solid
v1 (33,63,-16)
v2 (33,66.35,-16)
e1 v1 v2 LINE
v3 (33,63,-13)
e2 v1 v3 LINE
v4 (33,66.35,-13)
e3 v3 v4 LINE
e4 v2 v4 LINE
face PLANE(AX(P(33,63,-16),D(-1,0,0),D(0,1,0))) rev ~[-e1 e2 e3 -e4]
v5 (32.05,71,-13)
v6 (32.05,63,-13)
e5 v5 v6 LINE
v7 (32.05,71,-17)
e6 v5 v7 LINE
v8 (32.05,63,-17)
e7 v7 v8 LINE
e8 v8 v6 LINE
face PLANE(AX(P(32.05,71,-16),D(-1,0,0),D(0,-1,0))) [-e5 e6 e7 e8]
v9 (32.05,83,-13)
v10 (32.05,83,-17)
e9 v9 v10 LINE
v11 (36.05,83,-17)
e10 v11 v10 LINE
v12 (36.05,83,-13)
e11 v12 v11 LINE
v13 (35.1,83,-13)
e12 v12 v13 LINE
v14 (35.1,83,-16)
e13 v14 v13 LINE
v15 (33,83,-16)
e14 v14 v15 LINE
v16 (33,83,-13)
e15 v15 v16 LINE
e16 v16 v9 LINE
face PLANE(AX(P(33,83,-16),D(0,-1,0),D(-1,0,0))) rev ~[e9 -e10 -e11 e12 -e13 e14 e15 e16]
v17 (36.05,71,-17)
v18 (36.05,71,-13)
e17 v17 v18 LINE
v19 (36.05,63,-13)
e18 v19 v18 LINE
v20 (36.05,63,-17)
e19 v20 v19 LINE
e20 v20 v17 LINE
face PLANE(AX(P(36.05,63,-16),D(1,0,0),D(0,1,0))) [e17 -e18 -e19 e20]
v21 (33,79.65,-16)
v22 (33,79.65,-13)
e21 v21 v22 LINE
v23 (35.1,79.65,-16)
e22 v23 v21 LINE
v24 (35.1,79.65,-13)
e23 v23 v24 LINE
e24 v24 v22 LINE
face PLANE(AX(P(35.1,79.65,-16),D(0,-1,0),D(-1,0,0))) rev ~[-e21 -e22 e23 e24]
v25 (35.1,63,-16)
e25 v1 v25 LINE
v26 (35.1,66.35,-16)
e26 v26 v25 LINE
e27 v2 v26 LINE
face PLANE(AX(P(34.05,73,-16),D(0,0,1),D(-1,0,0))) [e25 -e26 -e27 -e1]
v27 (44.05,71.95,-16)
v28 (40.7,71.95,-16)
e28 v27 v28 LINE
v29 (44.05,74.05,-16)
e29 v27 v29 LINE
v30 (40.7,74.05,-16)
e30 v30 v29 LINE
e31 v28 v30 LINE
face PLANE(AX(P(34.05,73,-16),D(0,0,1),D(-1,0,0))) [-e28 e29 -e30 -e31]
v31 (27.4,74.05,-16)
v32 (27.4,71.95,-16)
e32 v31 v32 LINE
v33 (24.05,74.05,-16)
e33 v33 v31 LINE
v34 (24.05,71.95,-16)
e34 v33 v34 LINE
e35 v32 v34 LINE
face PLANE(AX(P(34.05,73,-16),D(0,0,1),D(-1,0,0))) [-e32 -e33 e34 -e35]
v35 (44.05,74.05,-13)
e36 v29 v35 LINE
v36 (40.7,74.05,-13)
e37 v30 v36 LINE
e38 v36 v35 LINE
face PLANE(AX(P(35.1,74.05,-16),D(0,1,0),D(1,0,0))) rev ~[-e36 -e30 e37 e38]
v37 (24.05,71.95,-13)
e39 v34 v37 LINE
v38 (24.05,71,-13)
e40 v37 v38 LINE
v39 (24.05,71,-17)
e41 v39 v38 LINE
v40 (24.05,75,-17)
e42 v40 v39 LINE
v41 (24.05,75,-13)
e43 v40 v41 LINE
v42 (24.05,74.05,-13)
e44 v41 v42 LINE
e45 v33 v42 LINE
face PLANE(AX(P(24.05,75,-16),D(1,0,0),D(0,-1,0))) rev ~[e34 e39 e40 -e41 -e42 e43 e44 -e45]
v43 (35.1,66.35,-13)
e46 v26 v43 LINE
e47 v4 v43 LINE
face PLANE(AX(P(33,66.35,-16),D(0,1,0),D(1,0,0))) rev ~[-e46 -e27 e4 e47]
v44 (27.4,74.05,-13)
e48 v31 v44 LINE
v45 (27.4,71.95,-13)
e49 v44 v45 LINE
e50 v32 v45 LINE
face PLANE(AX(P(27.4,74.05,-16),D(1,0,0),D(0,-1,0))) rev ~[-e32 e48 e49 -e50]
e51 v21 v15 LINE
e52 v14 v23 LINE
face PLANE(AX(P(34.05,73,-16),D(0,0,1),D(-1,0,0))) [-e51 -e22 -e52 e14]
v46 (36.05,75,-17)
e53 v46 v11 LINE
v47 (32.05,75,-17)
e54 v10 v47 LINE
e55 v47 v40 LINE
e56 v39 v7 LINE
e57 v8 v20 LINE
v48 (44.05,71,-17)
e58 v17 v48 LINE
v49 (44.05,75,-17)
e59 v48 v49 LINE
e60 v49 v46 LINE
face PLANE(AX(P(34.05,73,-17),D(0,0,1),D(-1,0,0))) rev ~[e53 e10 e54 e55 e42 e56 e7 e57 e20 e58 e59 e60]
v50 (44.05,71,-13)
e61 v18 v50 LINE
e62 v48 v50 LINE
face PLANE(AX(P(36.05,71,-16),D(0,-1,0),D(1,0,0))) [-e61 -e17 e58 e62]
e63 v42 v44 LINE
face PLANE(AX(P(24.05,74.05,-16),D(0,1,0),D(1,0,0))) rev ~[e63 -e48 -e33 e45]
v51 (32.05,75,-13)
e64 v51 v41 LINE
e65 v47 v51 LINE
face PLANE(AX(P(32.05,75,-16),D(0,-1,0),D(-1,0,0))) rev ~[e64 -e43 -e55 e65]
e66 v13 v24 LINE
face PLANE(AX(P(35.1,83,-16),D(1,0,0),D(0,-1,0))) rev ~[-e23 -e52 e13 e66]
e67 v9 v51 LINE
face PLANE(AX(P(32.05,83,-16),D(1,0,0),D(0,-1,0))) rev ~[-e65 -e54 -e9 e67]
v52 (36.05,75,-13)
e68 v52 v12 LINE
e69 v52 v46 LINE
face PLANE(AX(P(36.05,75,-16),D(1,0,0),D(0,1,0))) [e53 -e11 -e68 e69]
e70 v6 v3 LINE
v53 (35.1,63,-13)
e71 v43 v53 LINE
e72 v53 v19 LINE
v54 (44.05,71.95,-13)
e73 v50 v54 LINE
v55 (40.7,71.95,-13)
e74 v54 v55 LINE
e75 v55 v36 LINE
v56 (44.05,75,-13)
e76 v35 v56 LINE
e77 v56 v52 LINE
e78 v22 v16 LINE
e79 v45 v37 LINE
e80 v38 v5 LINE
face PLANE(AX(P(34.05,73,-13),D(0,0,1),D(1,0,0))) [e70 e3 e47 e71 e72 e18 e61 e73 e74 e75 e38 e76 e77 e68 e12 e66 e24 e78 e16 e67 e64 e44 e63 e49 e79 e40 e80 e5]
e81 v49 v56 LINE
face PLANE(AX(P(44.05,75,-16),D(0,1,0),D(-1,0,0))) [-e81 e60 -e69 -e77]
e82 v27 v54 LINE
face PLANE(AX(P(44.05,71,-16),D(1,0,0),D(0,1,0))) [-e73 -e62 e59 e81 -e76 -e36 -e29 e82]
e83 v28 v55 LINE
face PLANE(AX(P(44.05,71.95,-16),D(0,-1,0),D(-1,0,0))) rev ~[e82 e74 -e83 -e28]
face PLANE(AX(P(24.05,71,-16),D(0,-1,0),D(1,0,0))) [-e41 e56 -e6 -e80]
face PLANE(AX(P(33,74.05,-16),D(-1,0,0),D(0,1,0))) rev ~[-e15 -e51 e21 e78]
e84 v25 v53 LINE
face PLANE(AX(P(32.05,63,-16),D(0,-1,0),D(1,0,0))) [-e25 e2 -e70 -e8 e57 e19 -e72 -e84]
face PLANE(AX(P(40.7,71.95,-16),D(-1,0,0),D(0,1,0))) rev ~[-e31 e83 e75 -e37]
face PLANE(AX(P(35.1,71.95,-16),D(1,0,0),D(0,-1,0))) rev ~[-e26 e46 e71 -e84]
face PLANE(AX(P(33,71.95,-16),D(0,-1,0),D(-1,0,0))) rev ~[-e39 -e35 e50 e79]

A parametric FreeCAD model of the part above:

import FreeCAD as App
import Part
import Sketcher

V = App.Vector

doc = App.newDocument("Part")
body = doc.addObject("PartDesign::Body", "Body")

sketch1 = body.newObject("Sketcher::SketchObject", "Sketch")
sketch1.AttachmentSupport = (doc.getObject("XY_Plane"), [""])
sketch1.MapMode = "FlatFace"
sketch1.AttachmentOffset = App.Placement(V(0, 0, -28), App.Rotation())
sketch1.addGeometry([
    Part.LineSegment(V(-2, 10, 0), V(-2, 2, 0)),
    Part.LineSegment(V(-2, 2, 0), V(-10, 2, 0)),
    Part.LineSegment(V(-10, 2, 0), V(-10, -2, 0)),
    Part.LineSegment(V(-10, -2, 0), V(-2, -2, 0)),
    Part.LineSegment(V(-2, -2, 0), V(-2, -10, 0)),
    Part.LineSegment(V(-2, -10, 0), V(2, -10, 0)),
    Part.LineSegment(V(2, -10, 0), V(2, -2, 0)),
    Part.LineSegment(V(2, -2, 0), V(10, -2, 0)),
    Part.LineSegment(V(10, -2, 0), V(10, 2, 0)),
    Part.LineSegment(V(10, 2, 0), V(2, 2, 0)),
    Part.LineSegment(V(2, 2, 0), V(2, 10, 0)),
    Part.LineSegment(V(2, 10, 0), V(-2, 10, 0)),
], False)
sketch1.addConstraint([
    Sketcher.Constraint("Coincident", 0, 2, 1, 1),
    Sketcher.Constraint("Coincident", 1, 2, 2, 1),
    Sketcher.Constraint("Coincident", 2, 2, 3, 1),
    Sketcher.Constraint("Coincident", 3, 2, 4, 1),
    Sketcher.Constraint("Coincident", 4, 2, 5, 1),
    Sketcher.Constraint("Coincident", 5, 2, 6, 1),
    Sketcher.Constraint("Coincident", 6, 2, 7, 1),
    Sketcher.Constraint("Coincident", 7, 2, 8, 1),
    Sketcher.Constraint("Coincident", 8, 2, 9, 1),
    Sketcher.Constraint("Coincident", 9, 2, 10, 1),
    Sketcher.Constraint("Coincident", 10, 2, 11, 1),
    Sketcher.Constraint("Coincident", 11, 2, 0, 1),
    Sketcher.Constraint("Vertical", 0),
    Sketcher.Constraint("Horizontal", 1),
    Sketcher.Constraint("Vertical", 2),
    Sketcher.Constraint("Horizontal", 3),
    Sketcher.Constraint("Vertical", 4),
    Sketcher.Constraint("Horizontal", 5),
    Sketcher.Constraint("Vertical", 6),
    Sketcher.Constraint("Horizontal", 7),
    Sketcher.Constraint("Vertical", 8),
    Sketcher.Constraint("Horizontal", 9),
    Sketcher.Constraint("Vertical", 10),
    Sketcher.Constraint("Horizontal", 11),
    Sketcher.Constraint("Symmetric", 0, 2, 6, 2, -1, 1),
    Sketcher.Constraint("Symmetric", 2, 2, 8, 2, -1, 1),
    Sketcher.Constraint("Symmetric", 4, 2, 10, 2, -1, 1),
    Sketcher.Constraint("Symmetric", 3, 2, 6, 2, -2),
    Sketcher.Constraint("Equal", 9, 0),
    Sketcher.Constraint("Equal", 11, 2),
    Sketcher.Constraint("DistanceX", 1, 2, 1, 1, 8.0),
    Sketcher.Constraint("DistanceX", 5, 1, 5, 2, 4.0),
])
pad1 = body.newObject("PartDesign::Pad", "Pad")
pad1.Profile = sketch1
pad1.Length = 1

sketch2 = body.newObject("Sketcher::SketchObject", "Sketch001")
sketch2.AttachmentSupport = (doc.getObject("XY_Plane"), [""])
sketch2.MapMode = "FlatFace"
sketch2.AttachmentOffset = App.Placement(V(0, 0, -28), App.Rotation())
sketch2.addGeometry([
    Part.LineSegment(V(-2, -10, 0), V(-2, -2, 0)),
    Part.LineSegment(V(-2, -2, 0), V(-10, -2, 0)),
    Part.LineSegment(V(-10, -2, 0), V(-10, -1.1, 0)),
    Part.LineSegment(V(-10, -1.1, 0), V(-1.1, -1.1, 0)),
    Part.LineSegment(V(-1.1, -1.1, 0), V(-1.1, -10, 0)),
    Part.LineSegment(V(-1.1, -10, 0), V(-2, -10, 0)),
    Part.LineSegment(V(-10, 2, 0), V(-2, 2, 0)),
    Part.LineSegment(V(-2, 2, 0), V(-2, 10, 0)),
    Part.LineSegment(V(-2, 10, 0), V(-1.1, 10, 0)),
    Part.LineSegment(V(-1.1, 10, 0), V(-1.1, 1.1, 0)),
    Part.LineSegment(V(-1.1, 1.1, 0), V(-10, 1.1, 0)),
    Part.LineSegment(V(-10, 1.1, 0), V(-10, 2, 0)),
    Part.LineSegment(V(2, 10, 0), V(2, 2, 0)),
    Part.LineSegment(V(2, 2, 0), V(10, 2, 0)),
    Part.LineSegment(V(10, 2, 0), V(10, 1.1, 0)),
    Part.LineSegment(V(10, 1.1, 0), V(1.1, 1.1, 0)),
    Part.LineSegment(V(1.1, 1.1, 0), V(1.1, 10, 0)),
    Part.LineSegment(V(1.1, 10, 0), V(2, 10, 0)),
    Part.LineSegment(V(10, -2, 0), V(2, -2, 0)),
    Part.LineSegment(V(2, -2, 0), V(2, -10, 0)),
    Part.LineSegment(V(2, -10, 0), V(1.1, -10, 0)),
    Part.LineSegment(V(1.1, -10, 0), V(1.1, -1.1, 0)),
    Part.LineSegment(V(1.1, -1.1, 0), V(10, -1.1, 0)),
    Part.LineSegment(V(10, -1.1, 0), V(10, -2, 0)),
], False)
sketch2.addConstraint([
    Sketcher.Constraint("Coincident", 0, 2, 1, 1),
    Sketcher.Constraint("Coincident", 1, 2, 2, 1),
    Sketcher.Constraint("Coincident", 2, 2, 3, 1),
    Sketcher.Constraint("Coincident", 3, 2, 4, 1),
    Sketcher.Constraint("Coincident", 4, 2, 5, 1),
    Sketcher.Constraint("Coincident", 5, 2, 0, 1),
    Sketcher.Constraint("Coincident", 6, 2, 7, 1),
    Sketcher.Constraint("Coincident", 7, 2, 8, 1),
    Sketcher.Constraint("Coincident", 8, 2, 9, 1),
    Sketcher.Constraint("Coincident", 9, 2, 10, 1),
    Sketcher.Constraint("Coincident", 10, 2, 11, 1),
    Sketcher.Constraint("Coincident", 11, 2, 6, 1),
    Sketcher.Constraint("Coincident", 12, 2, 13, 1),
    Sketcher.Constraint("Coincident", 13, 2, 14, 1),
    Sketcher.Constraint("Coincident", 14, 2, 15, 1),
    Sketcher.Constraint("Coincident", 15, 2, 16, 1),
    Sketcher.Constraint("Coincident", 16, 2, 17, 1),
    Sketcher.Constraint("Coincident", 17, 2, 12, 1),
    Sketcher.Constraint("Coincident", 18, 2, 19, 1),
    Sketcher.Constraint("Coincident", 19, 2, 20, 1),
    Sketcher.Constraint("Coincident", 20, 2, 21, 1),
    Sketcher.Constraint("Coincident", 21, 2, 22, 1),
    Sketcher.Constraint("Coincident", 22, 2, 23, 1),
    Sketcher.Constraint("Coincident", 23, 2, 18, 1),
    Sketcher.Constraint("Vertical", 0),
    Sketcher.Constraint("Horizontal", 1),
    Sketcher.Constraint("Vertical", 2),
    Sketcher.Constraint("Horizontal", 3),
    Sketcher.Constraint("Vertical", 4),
    Sketcher.Constraint("Horizontal", 5),
    Sketcher.Constraint("Horizontal", 6),
    Sketcher.Constraint("Vertical", 7),
    Sketcher.Constraint("Horizontal", 8),
    Sketcher.Constraint("Vertical", 9),
    Sketcher.Constraint("Horizontal", 10),
    Sketcher.Constraint("Vertical", 11),
    Sketcher.Constraint("Vertical", 12),
    Sketcher.Constraint("Horizontal", 13),
    Sketcher.Constraint("Vertical", 14),
    Sketcher.Constraint("Horizontal", 15),
    Sketcher.Constraint("Vertical", 16),
    Sketcher.Constraint("Horizontal", 17),
    Sketcher.Constraint("Horizontal", 18),
    Sketcher.Constraint("Vertical", 19),
    Sketcher.Constraint("Horizontal", 20),
    Sketcher.Constraint("Vertical", 21),
    Sketcher.Constraint("Horizontal", 22),
    Sketcher.Constraint("Vertical", 23),
    Sketcher.Constraint("Symmetric", 0, 2, 12, 2, -1, 1),
    Sketcher.Constraint("Symmetric", 2, 2, 14, 2, -1, 1),
    Sketcher.Constraint("Symmetric", 4, 2, 16, 2, -1, 1),
    Sketcher.Constraint("Symmetric", 6, 2, 18, 2, -1, 1),
    Sketcher.Constraint("Symmetric", 8, 2, 20, 2, -1, 1),
    Sketcher.Constraint("Symmetric", 10, 2, 22, 2, -1, 1),
    Sketcher.Constraint("Symmetric", 6, 2, 12, 2, -2),
    Sketcher.Constraint("Symmetric", 10, 2, 14, 2, -2),
    Sketcher.Constraint("Symmetric", 8, 2, 16, 2, -2),
    Sketcher.Constraint("Equal", 18, 0),
    Sketcher.Constraint("Equal", 20, 2),
    Sketcher.Constraint("DistanceX", 1, 2, 1, 1, 8.0),
    Sketcher.Constraint("DistanceX", 0, 2, -1, 1, 2.0),
    Sketcher.Constraint("DistanceY", 0, 2, -1, 1, 2.0),
    Sketcher.Constraint("DistanceX", 3, 1, 3, 2, 8.95),
])
pad2 = body.newObject("PartDesign::Pad", "Pad001")
pad2.Profile = sketch2
pad2.Length = 3
pad2.Reversed = True

sketch3 = body.newObject("Sketcher::SketchObject", "Sketch002")
sketch3.AttachmentSupport = (doc.getObject("XY_Plane"), [""])
sketch3.MapMode = "FlatFace"
sketch3.AttachmentOffset = App.Placement(V(0, 0, -28), App.Rotation())
sketch3.addGeometry([
    Part.LineSegment(V(-6.7, -1.1, 0), V(-6.7, 1.1, 0)),
    Part.LineSegment(V(-6.7, 1.1, 0), V(-1.1, 1.1, 0)),
    Part.LineSegment(V(-1.1, 1.1, 0), V(-1.1, 6.7, 0)),
    Part.LineSegment(V(-1.1, 6.7, 0), V(1.1, 6.7, 0)),
    Part.LineSegment(V(1.1, 6.7, 0), V(1.1, 1.1, 0)),
    Part.LineSegment(V(1.1, 1.1, 0), V(6.7, 1.1, 0)),
    Part.LineSegment(V(6.7, 1.1, 0), V(6.7, -1.1, 0)),
    Part.LineSegment(V(6.7, -1.1, 0), V(1.1, -1.1, 0)),
    Part.LineSegment(V(1.1, -1.1, 0), V(1.1, -6.7, 0)),
    Part.LineSegment(V(1.1, -6.7, 0), V(-1.1, -6.7, 0)),
    Part.LineSegment(V(-1.1, -6.7, 0), V(-1.1, -1.1, 0)),
    Part.LineSegment(V(-1.1, -1.1, 0), V(-6.7, -1.1, 0)),
], False)
sketch3.addConstraint([
    Sketcher.Constraint("Coincident", 0, 2, 1, 1),
    Sketcher.Constraint("Coincident", 1, 2, 2, 1),
    Sketcher.Constraint("Coincident", 2, 2, 3, 1),
    Sketcher.Constraint("Coincident", 3, 2, 4, 1),
    Sketcher.Constraint("Coincident", 4, 2, 5, 1),
    Sketcher.Constraint("Coincident", 5, 2, 6, 1),
    Sketcher.Constraint("Coincident", 6, 2, 7, 1),
    Sketcher.Constraint("Coincident", 7, 2, 8, 1),
    Sketcher.Constraint("Coincident", 8, 2, 9, 1),
    Sketcher.Constraint("Coincident", 9, 2, 10, 1),
    Sketcher.Constraint("Coincident", 10, 2, 11, 1),
    Sketcher.Constraint("Coincident", 11, 2, 0, 1),
    Sketcher.Constraint("Vertical", 0),
    Sketcher.Constraint("Horizontal", 1),
    Sketcher.Constraint("Vertical", 2),
    Sketcher.Constraint("Horizontal", 3),
    Sketcher.Constraint("Vertical", 4),
    Sketcher.Constraint("Horizontal", 5),
    Sketcher.Constraint("Vertical", 6),
    Sketcher.Constraint("Horizontal", 7),
    Sketcher.Constraint("Vertical", 8),
    Sketcher.Constraint("Horizontal", 9),
    Sketcher.Constraint("Vertical", 10),
    Sketcher.Constraint("Horizontal", 11),
    Sketcher.Constraint("Symmetric", 0, 2, 6, 2, -1, 1),
    Sketcher.Constraint("Symmetric", 2, 2, 8, 2, -1, 1),
    Sketcher.Constraint("Symmetric", 4, 2, 10, 2, -1, 1),
    Sketcher.Constraint("Symmetric", 1, 2, 4, 2, -2),
    Sketcher.Constraint("Equal", 9, 0),
    Sketcher.Constraint("Equal", 11, 2),
    Sketcher.Constraint("DistanceX", 1, 1, 1, 2, 5.6),
    Sketcher.Constraint("DistanceX", 3, 1, 3, 2, 2.1),
])
pad3 = body.newObject("PartDesign::Pad", "Pad002")
pad3.Profile = sketch3
pad3.Length = 3
pad3.Reversed = True
body2 = doc.addObject("PartDesign::Body", "Body001")
doc.recompute()

body.Placement = App.Placement(V(34.05, 73, -44), App.Rotation(V(1, 0, 0), 180))
boolean = body2.newObject("PartDesign::Boolean", "Boolean")
boolean.Type = "Fuse"
boolean.addObjects([body])

doc.recompute()
